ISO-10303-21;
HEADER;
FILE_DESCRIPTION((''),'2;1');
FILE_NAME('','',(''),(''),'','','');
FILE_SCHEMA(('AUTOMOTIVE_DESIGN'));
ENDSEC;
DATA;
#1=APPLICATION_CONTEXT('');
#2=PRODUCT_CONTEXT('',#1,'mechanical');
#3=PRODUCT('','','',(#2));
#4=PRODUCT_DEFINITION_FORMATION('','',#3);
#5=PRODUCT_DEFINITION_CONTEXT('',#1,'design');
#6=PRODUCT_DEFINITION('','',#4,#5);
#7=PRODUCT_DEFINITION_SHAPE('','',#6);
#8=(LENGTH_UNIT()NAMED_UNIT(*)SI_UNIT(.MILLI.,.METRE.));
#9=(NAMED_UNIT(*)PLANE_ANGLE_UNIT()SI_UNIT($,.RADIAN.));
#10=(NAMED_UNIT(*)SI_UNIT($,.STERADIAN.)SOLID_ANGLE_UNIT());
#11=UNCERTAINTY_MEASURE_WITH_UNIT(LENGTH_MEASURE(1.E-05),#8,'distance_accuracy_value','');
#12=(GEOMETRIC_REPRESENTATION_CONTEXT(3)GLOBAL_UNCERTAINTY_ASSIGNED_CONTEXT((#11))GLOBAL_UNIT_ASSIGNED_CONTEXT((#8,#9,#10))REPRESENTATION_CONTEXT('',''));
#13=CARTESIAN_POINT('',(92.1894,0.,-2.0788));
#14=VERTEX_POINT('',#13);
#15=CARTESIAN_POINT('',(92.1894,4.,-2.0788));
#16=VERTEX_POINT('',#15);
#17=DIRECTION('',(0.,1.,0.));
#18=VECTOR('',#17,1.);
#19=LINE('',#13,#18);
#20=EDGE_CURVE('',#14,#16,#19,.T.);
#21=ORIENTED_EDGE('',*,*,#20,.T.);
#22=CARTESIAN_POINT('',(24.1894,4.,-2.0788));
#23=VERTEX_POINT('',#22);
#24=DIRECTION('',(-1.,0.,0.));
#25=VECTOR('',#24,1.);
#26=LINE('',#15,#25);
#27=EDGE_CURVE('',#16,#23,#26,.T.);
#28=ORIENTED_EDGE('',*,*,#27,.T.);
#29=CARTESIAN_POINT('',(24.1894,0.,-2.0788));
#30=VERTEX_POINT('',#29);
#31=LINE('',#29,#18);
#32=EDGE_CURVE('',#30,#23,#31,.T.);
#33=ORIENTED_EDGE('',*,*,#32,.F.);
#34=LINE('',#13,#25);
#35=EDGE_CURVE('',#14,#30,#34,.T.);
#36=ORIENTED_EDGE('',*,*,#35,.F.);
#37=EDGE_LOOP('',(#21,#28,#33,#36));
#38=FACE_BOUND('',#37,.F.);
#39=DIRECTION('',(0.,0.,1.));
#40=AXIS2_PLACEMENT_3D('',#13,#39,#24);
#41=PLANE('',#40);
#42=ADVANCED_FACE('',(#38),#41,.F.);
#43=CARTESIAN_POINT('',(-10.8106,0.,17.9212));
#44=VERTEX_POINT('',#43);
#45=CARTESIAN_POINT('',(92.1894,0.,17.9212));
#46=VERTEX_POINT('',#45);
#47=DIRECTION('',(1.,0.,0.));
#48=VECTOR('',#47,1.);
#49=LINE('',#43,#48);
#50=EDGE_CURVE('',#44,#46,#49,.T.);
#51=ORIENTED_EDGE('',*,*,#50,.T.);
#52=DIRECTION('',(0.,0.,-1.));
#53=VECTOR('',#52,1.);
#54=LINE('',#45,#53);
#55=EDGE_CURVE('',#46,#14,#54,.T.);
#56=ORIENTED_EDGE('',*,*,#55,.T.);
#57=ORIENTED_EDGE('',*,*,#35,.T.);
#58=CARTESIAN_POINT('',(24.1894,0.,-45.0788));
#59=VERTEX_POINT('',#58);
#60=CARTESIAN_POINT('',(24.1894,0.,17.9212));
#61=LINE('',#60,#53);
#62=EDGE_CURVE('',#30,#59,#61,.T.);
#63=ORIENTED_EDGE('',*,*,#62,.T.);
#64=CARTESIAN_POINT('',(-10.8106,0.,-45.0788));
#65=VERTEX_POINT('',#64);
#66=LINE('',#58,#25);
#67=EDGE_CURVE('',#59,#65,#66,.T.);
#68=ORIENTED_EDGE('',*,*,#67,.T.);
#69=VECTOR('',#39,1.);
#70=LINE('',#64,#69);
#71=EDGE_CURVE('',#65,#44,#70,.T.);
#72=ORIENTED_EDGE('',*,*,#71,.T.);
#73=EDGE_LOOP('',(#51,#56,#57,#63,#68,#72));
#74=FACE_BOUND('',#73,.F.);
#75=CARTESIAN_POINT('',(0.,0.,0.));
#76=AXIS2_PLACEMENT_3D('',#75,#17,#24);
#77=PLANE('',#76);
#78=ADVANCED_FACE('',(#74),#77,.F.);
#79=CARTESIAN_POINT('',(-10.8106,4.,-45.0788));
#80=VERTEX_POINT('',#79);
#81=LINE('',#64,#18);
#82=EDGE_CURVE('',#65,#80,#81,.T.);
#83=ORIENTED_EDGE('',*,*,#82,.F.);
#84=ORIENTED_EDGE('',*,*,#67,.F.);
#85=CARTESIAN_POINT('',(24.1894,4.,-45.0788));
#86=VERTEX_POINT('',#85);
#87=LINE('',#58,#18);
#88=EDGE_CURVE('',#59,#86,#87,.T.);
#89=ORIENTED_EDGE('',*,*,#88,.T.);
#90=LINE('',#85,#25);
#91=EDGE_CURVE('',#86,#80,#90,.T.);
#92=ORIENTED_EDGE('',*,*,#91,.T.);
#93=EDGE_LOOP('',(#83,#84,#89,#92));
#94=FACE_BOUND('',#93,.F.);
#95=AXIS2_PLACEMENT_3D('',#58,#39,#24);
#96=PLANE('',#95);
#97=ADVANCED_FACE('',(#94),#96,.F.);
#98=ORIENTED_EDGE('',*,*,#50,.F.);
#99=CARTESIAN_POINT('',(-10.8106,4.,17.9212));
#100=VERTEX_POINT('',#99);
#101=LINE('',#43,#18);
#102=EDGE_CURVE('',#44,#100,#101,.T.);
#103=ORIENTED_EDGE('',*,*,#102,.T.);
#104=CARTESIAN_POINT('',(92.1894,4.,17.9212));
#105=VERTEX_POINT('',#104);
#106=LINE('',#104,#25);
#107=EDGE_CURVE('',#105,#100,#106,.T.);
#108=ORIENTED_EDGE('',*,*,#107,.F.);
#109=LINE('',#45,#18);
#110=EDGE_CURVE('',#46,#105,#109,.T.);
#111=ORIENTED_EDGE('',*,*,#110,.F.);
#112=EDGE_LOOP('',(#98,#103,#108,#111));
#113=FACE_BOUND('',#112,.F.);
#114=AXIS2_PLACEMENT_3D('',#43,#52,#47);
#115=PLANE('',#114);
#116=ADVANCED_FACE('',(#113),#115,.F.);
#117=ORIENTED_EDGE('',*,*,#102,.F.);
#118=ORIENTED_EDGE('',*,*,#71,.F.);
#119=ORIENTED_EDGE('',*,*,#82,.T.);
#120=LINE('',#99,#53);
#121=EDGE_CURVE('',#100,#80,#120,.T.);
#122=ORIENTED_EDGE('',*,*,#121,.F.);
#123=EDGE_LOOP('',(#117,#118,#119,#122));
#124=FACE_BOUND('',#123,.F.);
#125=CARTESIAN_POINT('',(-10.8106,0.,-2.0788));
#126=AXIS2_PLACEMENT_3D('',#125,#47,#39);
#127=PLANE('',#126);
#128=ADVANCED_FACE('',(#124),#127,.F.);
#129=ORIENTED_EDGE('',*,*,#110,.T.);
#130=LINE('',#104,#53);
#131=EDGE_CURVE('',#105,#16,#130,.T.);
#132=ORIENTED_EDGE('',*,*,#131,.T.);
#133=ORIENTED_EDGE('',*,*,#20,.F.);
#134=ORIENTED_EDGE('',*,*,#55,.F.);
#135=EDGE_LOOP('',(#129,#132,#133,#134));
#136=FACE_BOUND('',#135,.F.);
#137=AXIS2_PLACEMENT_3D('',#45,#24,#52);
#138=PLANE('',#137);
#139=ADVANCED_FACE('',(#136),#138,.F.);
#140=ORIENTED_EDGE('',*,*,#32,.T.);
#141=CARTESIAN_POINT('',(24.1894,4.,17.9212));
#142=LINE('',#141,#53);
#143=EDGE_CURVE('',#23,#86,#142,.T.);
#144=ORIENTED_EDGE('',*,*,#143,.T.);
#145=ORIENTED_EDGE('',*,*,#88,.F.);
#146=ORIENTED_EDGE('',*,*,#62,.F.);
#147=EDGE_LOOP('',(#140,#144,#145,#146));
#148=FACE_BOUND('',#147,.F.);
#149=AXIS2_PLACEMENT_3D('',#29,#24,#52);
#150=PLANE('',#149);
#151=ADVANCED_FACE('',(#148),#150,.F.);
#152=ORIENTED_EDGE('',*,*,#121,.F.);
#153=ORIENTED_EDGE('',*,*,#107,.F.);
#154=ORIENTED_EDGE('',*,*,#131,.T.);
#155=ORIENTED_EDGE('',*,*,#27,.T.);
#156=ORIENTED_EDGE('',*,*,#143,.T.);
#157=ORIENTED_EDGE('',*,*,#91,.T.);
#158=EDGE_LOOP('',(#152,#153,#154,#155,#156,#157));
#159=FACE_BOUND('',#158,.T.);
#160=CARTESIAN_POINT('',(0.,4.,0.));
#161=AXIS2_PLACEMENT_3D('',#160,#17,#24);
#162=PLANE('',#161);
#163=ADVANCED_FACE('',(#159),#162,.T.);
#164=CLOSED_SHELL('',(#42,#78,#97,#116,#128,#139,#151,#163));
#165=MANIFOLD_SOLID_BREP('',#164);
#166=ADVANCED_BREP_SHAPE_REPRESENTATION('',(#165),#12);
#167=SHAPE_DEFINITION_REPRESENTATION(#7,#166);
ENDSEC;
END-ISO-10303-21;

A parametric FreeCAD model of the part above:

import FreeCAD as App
import Part
import Sketcher
from FreeCAD import Vector


def add_polygon(sketch, points):
    """Adds a closed chain of lines whose ends are joined by coincident constraints."""
    first, n = sketch.GeometryCount, len(points)
    for a, b in zip(points, points[1:] + points[:1]):
        sketch.addGeometry(Part.LineSegment(App.Vector(*a, 0), App.Vector(*b, 0)), False)
    for i in range(n):
        sketch.addConstraint(Sketcher.Constraint("Coincident", first + i, 2, first + (i + 1) % n, 1))

doc = App.newDocument("Part")
body = doc.addObject("PartDesign::Body", "Body")

# Sketch on XZ plane
sketch1 = doc.addObject("Sketcher::SketchObject", "Sketch")
body.addObject(sketch1)
sketch1.AttachmentSupport = (doc.XZ_Plane, [""])
sketch1.MapMode = "FlatFace"
add_polygon(sketch1, [(-11, 18), (92, 18), (92, -2), (24, -2), (24, -45), (-11, -45)])  # lines 0-5
sketch1.addConstraint([
    Sketcher.Constraint("Horizontal", 0),
    Sketcher.Constraint("Vertical", 1),
    Sketcher.Constraint("Horizontal", 2),
    Sketcher.Constraint("Vertical", 3),
    Sketcher.Constraint("Horizontal", 4),
    Sketcher.Constraint("Vertical", 5),
    Sketcher.Constraint("DistanceX", 0, 1, 0, 2, 103.0),
    Sketcher.Constraint("DistanceX", 4, 2, 4, 1, 35.0),
    Sketcher.Constraint("DistanceY", 1, 2, 1, 1, 20.0),
    Sketcher.Constraint("DistanceY", 5, 1, 5, 2, 63.0),
    Sketcher.Constraint("DistanceX", -1, 1, 0, 2, 92.1894),
    Sketcher.Constraint("DistanceY", -1, 1, 0, 2, 17.9212),
])
pad1 = doc.addObject("PartDesign::Pad", "Pad")
body.addObject(pad1)
pad1.Profile = sketch1
pad1.Length = 4
pad1.Reversed = True

doc.recompute()
